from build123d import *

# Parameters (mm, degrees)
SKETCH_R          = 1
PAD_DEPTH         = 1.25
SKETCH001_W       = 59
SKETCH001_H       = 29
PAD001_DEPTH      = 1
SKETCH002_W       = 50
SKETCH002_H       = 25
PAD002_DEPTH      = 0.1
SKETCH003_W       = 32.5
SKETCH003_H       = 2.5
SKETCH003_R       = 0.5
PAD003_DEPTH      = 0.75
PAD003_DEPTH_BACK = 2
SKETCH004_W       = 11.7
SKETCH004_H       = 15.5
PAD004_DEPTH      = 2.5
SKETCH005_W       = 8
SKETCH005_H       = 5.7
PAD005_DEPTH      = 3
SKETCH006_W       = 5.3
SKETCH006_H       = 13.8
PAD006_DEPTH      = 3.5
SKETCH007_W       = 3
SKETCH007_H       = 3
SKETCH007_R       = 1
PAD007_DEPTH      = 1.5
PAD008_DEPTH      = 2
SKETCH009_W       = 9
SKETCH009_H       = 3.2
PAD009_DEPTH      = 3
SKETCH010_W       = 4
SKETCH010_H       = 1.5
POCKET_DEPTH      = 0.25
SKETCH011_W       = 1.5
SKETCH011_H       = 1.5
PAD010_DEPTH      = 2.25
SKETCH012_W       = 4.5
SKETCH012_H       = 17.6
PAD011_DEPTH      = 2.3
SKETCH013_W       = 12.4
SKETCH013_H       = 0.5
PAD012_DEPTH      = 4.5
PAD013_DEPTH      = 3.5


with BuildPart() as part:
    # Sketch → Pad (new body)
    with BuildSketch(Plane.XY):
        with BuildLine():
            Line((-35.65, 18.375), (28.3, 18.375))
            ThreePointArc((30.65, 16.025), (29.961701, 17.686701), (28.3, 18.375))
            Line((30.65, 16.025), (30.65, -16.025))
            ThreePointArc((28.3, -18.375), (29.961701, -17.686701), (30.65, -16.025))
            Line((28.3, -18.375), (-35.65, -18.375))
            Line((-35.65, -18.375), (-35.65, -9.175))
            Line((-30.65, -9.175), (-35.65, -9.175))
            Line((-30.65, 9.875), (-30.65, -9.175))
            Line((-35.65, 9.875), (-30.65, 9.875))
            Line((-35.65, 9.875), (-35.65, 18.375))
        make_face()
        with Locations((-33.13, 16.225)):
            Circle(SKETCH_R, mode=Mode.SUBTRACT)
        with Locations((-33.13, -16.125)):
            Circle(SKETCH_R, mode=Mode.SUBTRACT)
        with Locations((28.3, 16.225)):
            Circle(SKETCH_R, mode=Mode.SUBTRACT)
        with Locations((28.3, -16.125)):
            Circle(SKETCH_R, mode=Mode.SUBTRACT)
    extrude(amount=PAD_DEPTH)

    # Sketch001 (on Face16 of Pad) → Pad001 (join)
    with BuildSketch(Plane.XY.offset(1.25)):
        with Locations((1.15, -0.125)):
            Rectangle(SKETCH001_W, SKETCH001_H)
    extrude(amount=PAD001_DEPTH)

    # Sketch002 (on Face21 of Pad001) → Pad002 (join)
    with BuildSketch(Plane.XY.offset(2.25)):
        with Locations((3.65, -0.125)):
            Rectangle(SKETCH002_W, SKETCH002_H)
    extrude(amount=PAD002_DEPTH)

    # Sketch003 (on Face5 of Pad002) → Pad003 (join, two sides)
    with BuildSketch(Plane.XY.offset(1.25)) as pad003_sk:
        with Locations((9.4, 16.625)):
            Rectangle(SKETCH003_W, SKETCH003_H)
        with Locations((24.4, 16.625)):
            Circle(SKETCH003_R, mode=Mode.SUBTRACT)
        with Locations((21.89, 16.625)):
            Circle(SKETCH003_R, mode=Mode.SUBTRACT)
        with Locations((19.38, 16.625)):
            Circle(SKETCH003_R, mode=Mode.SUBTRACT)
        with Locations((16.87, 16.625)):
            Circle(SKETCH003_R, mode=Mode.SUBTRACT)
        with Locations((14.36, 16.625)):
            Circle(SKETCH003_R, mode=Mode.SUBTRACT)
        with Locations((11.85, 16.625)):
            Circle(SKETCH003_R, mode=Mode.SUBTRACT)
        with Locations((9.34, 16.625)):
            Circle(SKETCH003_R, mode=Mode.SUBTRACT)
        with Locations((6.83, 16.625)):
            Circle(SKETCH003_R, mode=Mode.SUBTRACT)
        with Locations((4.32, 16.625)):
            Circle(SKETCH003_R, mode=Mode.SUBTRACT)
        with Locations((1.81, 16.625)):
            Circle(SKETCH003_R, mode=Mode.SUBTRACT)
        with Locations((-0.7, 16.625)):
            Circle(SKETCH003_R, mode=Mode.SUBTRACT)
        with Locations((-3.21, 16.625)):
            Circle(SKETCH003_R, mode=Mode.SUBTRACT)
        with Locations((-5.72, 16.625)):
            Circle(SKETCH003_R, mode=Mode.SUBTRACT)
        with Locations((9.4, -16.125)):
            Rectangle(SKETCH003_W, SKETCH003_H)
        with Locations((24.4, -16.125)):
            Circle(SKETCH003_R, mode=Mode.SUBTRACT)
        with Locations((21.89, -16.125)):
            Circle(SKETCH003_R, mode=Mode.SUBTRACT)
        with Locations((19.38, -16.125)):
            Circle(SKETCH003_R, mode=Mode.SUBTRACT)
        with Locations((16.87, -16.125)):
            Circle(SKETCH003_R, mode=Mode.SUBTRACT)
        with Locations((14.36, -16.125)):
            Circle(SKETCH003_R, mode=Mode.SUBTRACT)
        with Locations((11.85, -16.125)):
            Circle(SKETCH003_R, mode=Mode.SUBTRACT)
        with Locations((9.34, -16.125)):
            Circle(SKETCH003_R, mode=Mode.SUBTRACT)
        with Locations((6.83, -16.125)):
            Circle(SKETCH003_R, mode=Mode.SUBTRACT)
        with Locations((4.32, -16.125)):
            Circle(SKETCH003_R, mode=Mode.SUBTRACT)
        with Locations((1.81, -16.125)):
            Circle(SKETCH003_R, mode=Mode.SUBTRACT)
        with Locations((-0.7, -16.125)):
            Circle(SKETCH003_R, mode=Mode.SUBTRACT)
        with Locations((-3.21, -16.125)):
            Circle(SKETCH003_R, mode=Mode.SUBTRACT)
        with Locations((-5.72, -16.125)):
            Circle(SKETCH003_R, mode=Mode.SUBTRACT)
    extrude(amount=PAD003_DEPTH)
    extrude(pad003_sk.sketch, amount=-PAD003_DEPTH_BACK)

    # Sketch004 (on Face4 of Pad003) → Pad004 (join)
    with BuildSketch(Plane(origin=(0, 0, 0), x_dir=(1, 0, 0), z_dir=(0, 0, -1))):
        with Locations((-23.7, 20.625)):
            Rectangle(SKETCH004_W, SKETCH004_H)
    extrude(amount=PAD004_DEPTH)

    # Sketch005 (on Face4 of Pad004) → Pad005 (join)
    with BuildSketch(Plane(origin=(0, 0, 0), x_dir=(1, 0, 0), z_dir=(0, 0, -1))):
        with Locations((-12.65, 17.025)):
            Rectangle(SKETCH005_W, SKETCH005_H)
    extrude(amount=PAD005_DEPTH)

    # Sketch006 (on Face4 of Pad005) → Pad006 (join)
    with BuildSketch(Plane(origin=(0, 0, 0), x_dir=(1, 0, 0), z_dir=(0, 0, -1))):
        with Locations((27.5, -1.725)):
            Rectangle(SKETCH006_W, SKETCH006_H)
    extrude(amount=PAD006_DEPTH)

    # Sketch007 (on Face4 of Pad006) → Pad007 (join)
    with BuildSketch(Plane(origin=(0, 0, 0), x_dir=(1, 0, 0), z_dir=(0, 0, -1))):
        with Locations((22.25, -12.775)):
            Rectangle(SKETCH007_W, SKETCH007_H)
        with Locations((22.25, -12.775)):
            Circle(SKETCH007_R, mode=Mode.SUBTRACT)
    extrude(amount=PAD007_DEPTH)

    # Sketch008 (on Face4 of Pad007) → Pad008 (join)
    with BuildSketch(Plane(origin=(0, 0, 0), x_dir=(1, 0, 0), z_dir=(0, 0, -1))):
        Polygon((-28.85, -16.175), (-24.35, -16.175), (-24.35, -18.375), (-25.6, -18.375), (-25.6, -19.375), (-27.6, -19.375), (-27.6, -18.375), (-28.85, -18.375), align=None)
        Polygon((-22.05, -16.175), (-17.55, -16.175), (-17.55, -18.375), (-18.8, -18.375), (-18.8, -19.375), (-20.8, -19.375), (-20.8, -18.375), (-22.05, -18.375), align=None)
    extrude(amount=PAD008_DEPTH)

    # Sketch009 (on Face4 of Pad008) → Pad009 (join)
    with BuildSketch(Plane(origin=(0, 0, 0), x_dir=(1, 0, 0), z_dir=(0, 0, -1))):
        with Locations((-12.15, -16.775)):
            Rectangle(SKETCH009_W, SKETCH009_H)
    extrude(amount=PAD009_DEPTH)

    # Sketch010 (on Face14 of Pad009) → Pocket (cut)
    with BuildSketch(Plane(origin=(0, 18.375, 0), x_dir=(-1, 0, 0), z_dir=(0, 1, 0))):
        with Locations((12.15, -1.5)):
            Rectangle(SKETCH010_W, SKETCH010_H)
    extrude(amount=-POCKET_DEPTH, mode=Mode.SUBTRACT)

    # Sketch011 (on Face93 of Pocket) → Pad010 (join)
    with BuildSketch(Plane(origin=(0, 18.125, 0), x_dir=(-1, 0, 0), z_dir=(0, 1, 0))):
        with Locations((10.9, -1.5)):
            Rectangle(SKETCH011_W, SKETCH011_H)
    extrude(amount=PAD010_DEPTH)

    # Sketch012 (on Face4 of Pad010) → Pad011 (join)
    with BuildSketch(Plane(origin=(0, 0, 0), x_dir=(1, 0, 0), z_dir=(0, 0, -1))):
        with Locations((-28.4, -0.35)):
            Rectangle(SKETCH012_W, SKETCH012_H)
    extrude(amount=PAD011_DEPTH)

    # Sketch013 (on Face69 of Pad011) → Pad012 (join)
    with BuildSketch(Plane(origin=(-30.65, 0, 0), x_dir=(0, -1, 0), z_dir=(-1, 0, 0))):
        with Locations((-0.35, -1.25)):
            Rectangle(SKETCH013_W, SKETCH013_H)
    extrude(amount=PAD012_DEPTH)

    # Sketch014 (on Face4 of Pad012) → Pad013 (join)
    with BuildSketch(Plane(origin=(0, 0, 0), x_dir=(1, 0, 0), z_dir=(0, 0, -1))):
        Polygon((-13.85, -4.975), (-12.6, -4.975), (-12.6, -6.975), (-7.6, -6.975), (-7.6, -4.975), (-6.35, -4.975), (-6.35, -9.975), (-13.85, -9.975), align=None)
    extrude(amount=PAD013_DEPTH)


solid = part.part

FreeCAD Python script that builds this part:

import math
import FreeCAD as App
import Part
import Sketcher

doc = App.newDocument("Part")
body = doc.addObject("PartDesign::Body", "Body")

# Sketch on XY plane
sketch1 = doc.addObject("Sketcher::SketchObject", "Sketch")
body.addObject(sketch1)
sketch1.AttachmentSupport = (doc.XY_Plane, [""])
sketch1.MapMode = "FlatFace"
sketch1.addGeometry([
    Part.LineSegment(App.Vector(28.3, 18.4, 0), App.Vector(-35.6, 18.4, 0)),  # 0
    Part.LineSegment(App.Vector(-35.6, 18.4, 0), App.Vector(-35.6, 9.9, 0)),  # 1
    Part.LineSegment(App.Vector(-35.6, 9.9, 0), App.Vector(-30.6, 9.9, 0)),  # 2
    Part.LineSegment(App.Vector(-30.6, 9.9, 0), App.Vector(-30.6, -9.2, 0)),  # 3
    Part.LineSegment(App.Vector(-30.6, -9.2, 0), App.Vector(-35.6, -9.2, 0)),  # 4
    Part.LineSegment(App.Vector(-35.6, -9.2, 0), App.Vector(-35.6, -18.4, 0)),  # 5
    Part.LineSegment(App.Vector(-35.6, -18.4, 0), App.Vector(28.3, -18.4, 0)),  # 6
    Part.ArcOfCircle(Part.Circle(App.Vector(28.3, -16, 0), App.Vector(0, 0, 1), 2.3), math.radians(-90), math.radians(0)),  # 7
    Part.LineSegment(App.Vector(30.6, -16, 0), App.Vector(30.6, 16, 0)),  # 8
    Part.ArcOfCircle(Part.Circle(App.Vector(28.3, 16, 0), App.Vector(0, 0, 1), 2.3), math.radians(0), math.radians(90)),  # 9
    Part.Circle(App.Vector(28.3, -16.1, 0), App.Vector(0, 0, 1), 1),  # 10
    Part.Circle(App.Vector(-33.1, -16.1, 0), App.Vector(0, 0, 1), 1),  # 11
    Part.Circle(App.Vector(28.3, 16.2, 0), App.Vector(0, 0, 1), 1),  # 12
    Part.Circle(App.Vector(-33.1, 16.2, 0), App.Vector(0, 0, 1), 1),  # 13
], False)
sketch1.addConstraint([
    Sketcher.Constraint("Coincident", 0, 2, 1, 1),
    Sketcher.Constraint("Coincident", 1, 2, 2, 1),
    Sketcher.Constraint("Coincident", 2, 2, 3, 1),
    Sketcher.Constraint("Coincident", 3, 2, 4, 1),
    Sketcher.Constraint("Coincident", 4, 2, 5, 1),
    Sketcher.Constraint("Coincident", 5, 2, 6, 1),
    Sketcher.Constraint("Tangent", 6, 2, 7, 1),
    Sketcher.Constraint("Tangent", 7, 2, 8, 1),
    Sketcher.Constraint("Tangent", 8, 2, 9, 1),
    Sketcher.Constraint("Tangent", 9, 2, 0, 1),
    Sketcher.Constraint("Horizontal", 0),
    Sketcher.Constraint("Vertical", 1),
    Sketcher.Constraint("Horizontal", 2),
    Sketcher.Constraint("Vertical", 3),
    Sketcher.Constraint("Horizontal", 4),
    Sketcher.Constraint("Vertical", 5),
    Sketcher.Constraint("Horizontal", 6),
    Sketcher.Constraint("Vertical", 8),
    Sketcher.Constraint("Equal", 7, 9),
    Sketcher.Constraint("Equal", 10, 11),
    Sketcher.Constraint("Equal", 11, 12),
    Sketcher.Constraint("Equal", 12, 13),
    Sketcher.Constraint("Symmetric", 0, 2, 5, 2, -1),
    Sketcher.Constraint("Horizontal", 10, 3, 11, 3),
    Sketcher.Constraint("Horizontal", 12, 3, 13, 3),
    Sketcher.Constraint("Vertical", 9, 3, 10, 3),
    Sketcher.Constraint("Vertical", 10, 3, 12, 3),
    Sketcher.Constraint("Vertical", 11, 3, 13, 3),
    Sketcher.Constraint("Diameter", 10, 2.0),
    Sketcher.Constraint("DistanceX", 2, 1, 2, 2, 5.0),
    Sketcher.Constraint("Radius", 7, 2.35),
    Sketcher.Constraint("DistanceY", 1, 2, 1, 1, 8.5),
    Sketcher.Constraint("DistanceY", 5, 2, 5, 1, 9.2),
    Sketcher.Constraint("DistanceY", 11, 3, 1, 2, 26.0),
    Sketcher.Constraint("DistanceX", 0, 2, 0, 1, 63.95),
    Sketcher.Constraint("DistanceY", 3, 2, 3, 1, 19.05),
    Sketcher.Constraint("DistanceX", -1, 1, 7, 3, 28.3),
    Sketcher.Constraint("DistanceY", 9, 3, 12, 3, 0.2),
    Sketcher.Constraint("DistanceX", 11, 3, -1, 1, 33.13),
])
pad1 = doc.addObject("PartDesign::Pad", "Pad")
body.addObject(pad1)
pad1.Profile = sketch1
pad1.Length = 1.25

# Sketch on XY plane
sketch2 = doc.addObject("Sketcher::SketchObject", "Sketch001")
body.addObject(sketch2)
sketch2.AttachmentSupport = (doc.XY_Plane, [""])
sketch2.MapMode = "FlatFace"
sketch2.AttachmentOffset = App.Placement(App.Vector(0, 0, 1.25), App.Rotation())
sketch2.addGeometry([
    Part.LineSegment(App.Vector(-28, 14, 0), App.Vector(-28, -15, 0)),
    Part.LineSegment(App.Vector(-28, -15, 0), App.Vector(31, -15, 0)),
    Part.LineSegment(App.Vector(31, -15, 0), App.Vector(31, 14, 0)),
    Part.LineSegment(App.Vector(31, 14, 0), App.Vector(-28, 14, 0)),
], False)
sketch2.addConstraint([
    Sketcher.Constraint("Coincident", 0, 2, 1, 1),
    Sketcher.Constraint("Coincident", 1, 2, 2, 1),
    Sketcher.Constraint("Coincident", 2, 2, 3, 1),
    Sketcher.Constraint("Coincident", 3, 2, 0, 1),
    Sketcher.Constraint("Vertical", 0),
    Sketcher.Constraint("Horizontal", 1),
    Sketcher.Constraint("Vertical", 2),
    Sketcher.Constraint("Horizontal", 3),
    Sketcher.Constraint("DistanceX", 1, 1, 1, 2, 59.0),
    Sketcher.Constraint("DistanceY", 0, 2, 0, 1, 29.0),
    Sketcher.Constraint("DistanceX", 0, 2, -1, 1, 28.35),
    Sketcher.Constraint("DistanceY", 0, 2, -1, 1, 14.625),
])
pad2 = doc.addObject("PartDesign::Pad", "Pad001")
body.addObject(pad2)
pad2.Profile = sketch2
pad2.Length = 1

# Sketch on XY plane
sketch3 = doc.addObject("Sketcher::SketchObject", "Sketch002")
body.addObject(sketch3)
sketch3.AttachmentSupport = (doc.XY_Plane, [""])
sketch3.MapMode = "FlatFace"
sketch3.AttachmentOffset = App.Placement(App.Vector(0, 0, 2.25), App.Rotation())
sketch3.addGeometry([
    Part.LineSegment(App.Vector(-21, 12, 0), App.Vector(-21, -13, 0)),
    Part.LineSegment(App.Vector(-21, -13, 0), App.Vector(29, -13, 0)),
    Part.LineSegment(App.Vector(29, -13, 0), App.Vector(29, 12, 0)),
    Part.LineSegment(App.Vector(29, 12, 0), App.Vector(-21, 12, 0)),
], False)
sketch3.addConstraint([
    Sketcher.Constraint("Coincident", 0, 2, 1, 1),
    Sketcher.Constraint("Coincident", 1, 2, 2, 1),
    Sketcher.Constraint("Coincident", 2, 2, 3, 1),
    Sketcher.Constraint("Coincident", 3, 2, 0, 1),
    Sketcher.Constraint("Vertical", 0),
    Sketcher.Constraint("Horizontal", 1),
    Sketcher.Constraint("Vertical", 2),
    Sketcher.Constraint("Horizontal", 3),
    Sketcher.Constraint("DistanceX", 1, 1, 1, 2, 50.0),
    Sketcher.Constraint("DistanceY", 0, 2, 0, 1, 25.0),
    Sketcher.Constraint("DistanceX", 0, 2, -1, 1, 21.35),
    Sketcher.Constraint("DistanceY", 0, 2, -1, 1, 12.625),
])
pad3 = doc.addObject("PartDesign::Pad", "Pad002")
body.addObject(pad3)
pad3.Profile = sketch3
pad3.Length = 0.1

# Sketch on XY plane
sketch4 = doc.addObject("Sketcher::SketchObject", "Sketch003")
body.addObject(sketch4)
sketch4.AttachmentSupport = (doc.XY_Plane, [""])
sketch4.MapMode = "FlatFace"
sketch4.AttachmentOffset = App.Placement(App.Vector(0, 0, 1.25), App.Rotation())
sketch4.addGeometry([
    Part.LineSegment(App.Vector(-6.8, 17.9, 0), App.Vector(-6.8, 15.4, 0)),  # 0
    Part.LineSegment(App.Vector(-6.8, 15.4, 0), App.Vector(25.6, 15.4, 0)),  # 1
    Part.LineSegment(App.Vector(25.6, 15.4, 0), App.Vector(25.6, 17.9, 0)),  # 2
    Part.LineSegment(App.Vector(25.6, 17.9, 0), App.Vector(-6.8, 17.9, 0)),  # 3
    Part.Circle(App.Vector(-5.7, 16.6, 0), App.Vector(0, 0, 1), 0.5),  # 4
    Part.Circle(App.Vector(-3.2, 16.6, 0), App.Vector(0, 0, 1), 0.5),  # 5
    Part.Circle(App.Vector(-0.7, 16.6, 0), App.Vector(0, 0, 1), 0.5),  # 6
    Part.Circle(App.Vector(1.8, 16.6, 0), App.Vector(0, 0, 1), 0.5),  # 7
    Part.Circle(App.Vector(4.3, 16.6, 0), App.Vector(0, 0, 1), 0.5),  # 8
    Part.Circle(App.Vector(6.8, 16.6, 0), App.Vector(0, 0, 1), 0.5),  # 9
    Part.Circle(App.Vector(9.3, 16.6, 0), App.Vector(0, 0, 1), 0.5),  # 10
    Part.Circle(App.Vector(11.8, 16.6, 0), App.Vector(0, 0, 1), 0.5),  # 11
    Part.Circle(App.Vector(14.4, 16.6, 0), App.Vector(0, 0, 1), 0.5),  # 12
    Part.Circle(App.Vector(16.9, 16.6, 0), App.Vector(0, 0, 1), 0.5),  # 13
    Part.Circle(App.Vector(19.4, 16.6, 0), App.Vector(0, 0, 1), 0.5),  # 14
    Part.Circle(App.Vector(21.9, 16.6, 0), App.Vector(0, 0, 1), 0.5),  # 15
    Part.Circle(App.Vector(24.4, 16.6, 0), App.Vector(0, 0, 1), 0.5),  # 16
    Part.LineSegment(App.Vector(-6.8, -14.9, 0), App.Vector(-6.8, -17.4, 0)),  # 17
    Part.LineSegment(App.Vector(-6.8, -17.4, 0), App.Vector(25.6, -17.4, 0)),  # 18
    Part.LineSegment(App.Vector(25.6, -17.4, 0), App.Vector(25.6, -14.9, 0)),  # 19
    Part.LineSegment(App.Vector(25.6, -14.9, 0), App.Vector(-6.8, -14.9, 0)),  # 20
    Part.Circle(App.Vector(-5.7, -16.1, 0), App.Vector(0, 0, 1), 0.5),  # 21
    Part.Circle(App.Vector(-3.2, -16.1, 0), App.Vector(0, 0, 1), 0.5),  # 22
    Part.Circle(App.Vector(-0.7, -16.1, 0), App.Vector(0, 0, 1), 0.5),  # 23
    Part.Circle(App.Vector(1.8, -16.1, 0), App.Vector(0, 0, 1), 0.5),  # 24
    Part.Circle(App.Vector(4.3, -16.1, 0), App.Vector(0, 0, 1), 0.5),  # 25
    Part.Circle(App.Vector(6.8, -16.1, 0), App.Vector(0, 0, 1), 0.5),  # 26
    Part.Circle(App.Vector(9.3, -16.1, 0), App.Vector(0, 0, 1), 0.5),  # 27
    Part.Circle(App.Vector(11.8, -16.1, 0), App.Vector(0, 0, 1), 0.5),  # 28
    Part.Circle(App.Vector(14.4, -16.1, 0), App.Vector(0, 0, 1), 0.5),  # 29
    Part.Circle(App.Vector(16.9, -16.1, 0), App.Vector(0, 0, 1), 0.5),  # 30
    Part.Circle(App.Vector(19.4, -16.1, 0), App.Vector(0, 0, 1), 0.5),  # 31
    Part.Circle(App.Vector(21.9, -16.1, 0), App.Vector(0, 0, 1), 0.5),  # 32
    Part.Circle(App.Vector(24.4, -16.1, 0), App.Vector(0, 0, 1), 0.5),  # 33
], False)
sketch4.addConstraint([
    Sketcher.Constraint("Coincident", 0, 2, 1, 1),
    Sketcher.Constraint("Coincident", 1, 2, 2, 1),
    Sketcher.Constraint("Coincident", 2, 2, 3, 1),
    Sketcher.Constraint("Coincident", 3, 2, 0, 1),
    Sketcher.Constraint("Coincident", 17, 2, 18, 1),
    Sketcher.Constraint("Coincident", 18, 2, 19, 1),
    Sketcher.Constraint("Coincident", 19, 2, 20, 1),
    Sketcher.Constraint("Coincident", 20, 2, 17, 1),
    Sketcher.Constraint("Vertical", 0),
    Sketcher.Constraint("Horizontal", 1),
    Sketcher.Constraint("Vertical", 2),
    Sketcher.Constraint("Horizontal", 3),
    Sketcher.Constraint("Vertical", 17),
    Sketcher.Constraint("Horizontal", 18),
    Sketcher.Constraint("Vertical", 19),
    Sketcher.Constraint("Horizontal", 20),
    Sketcher.Constraint("Equal", 4, 5),
    Sketcher.Constraint("Equal", 5, 6),
    Sketcher.Constraint("Equal", 6, 7),
    Sketcher.Constraint("Equal", 7, 8),
    Sketcher.Constraint("Equal", 8, 9),
    Sketcher.Constraint("Equal", 9, 10),
    Sketcher.Constraint("Equal", 10, 11),
    Sketcher.Constraint("Equal", 11, 12),
    Sketcher.Constraint("Equal", 12, 13),
    Sketcher.Constraint("Equal", 13, 14),
    Sketcher.Constraint("Equal", 14, 15),
    Sketcher.Constraint("Equal", 15, 16),
    Sketcher.Constraint("Equal", 16, 21),
    Sketcher.Constraint("Equal", 21, 22),
    Sketcher.Constraint("Equal", 22, 23),
    Sketcher.Constraint("Equal", 23, 24),
    Sketcher.Constraint("Equal", 24, 25),
    Sketcher.Constraint("Equal", 25, 26),
    Sketcher.Constraint("Equal", 26, 27),
    Sketcher.Constraint("Equal", 27, 28),
    Sketcher.Constraint("Equal", 28, 29),
    Sketcher.Constraint("Equal", 29, 30),
    Sketcher.Constraint("Equal", 30, 31),
    Sketcher.Constraint("Equal", 31, 32),
    Sketcher.Constraint("Equal", 32, 33),
    Sketcher.Constraint("Horizontal", 4, 3, 5, 3),
    Sketcher.Constraint("Horizontal", 5, 3, 6, 3),
    Sketcher.Constraint("Horizontal", 6, 3, 7, 3),
    Sketcher.Constraint("Horizontal", 7, 3, 8, 3),
    Sketcher.Constraint("Horizontal", 8, 3, 9, 3),
    Sketcher.Constraint("Horizontal", 9, 3, 10, 3),
    Sketcher.Constraint("Horizontal", 10, 3, 11, 3),
    Sketcher.Constraint("Horizontal", 11, 3, 12, 3),
    Sketcher.Constraint("Horizontal", 12, 3, 13, 3),
    Sketcher.Constraint("Horizontal", 13, 3, 14, 3),
    Sketcher.Constraint("Horizontal", 14, 3, 15, 3),
    Sketcher.Constraint("Horizontal", 15, 3, 16, 3),
    Sketcher.Constraint("Horizontal", 21, 3, 22, 3),
    Sketcher.Constraint("Horizontal", 22, 3, 23, 3),
    Sketcher.Constraint("Horizontal", 23, 3, 24, 3),
    Sketcher.Constraint("Horizontal", 24, 3, 25, 3),
    Sketcher.Constraint("Horizontal", 25, 3, 26, 3),
    Sketcher.Constraint("Horizontal", 26, 3, 27, 3),
    Sketcher.Constraint("Horizontal", 27, 3, 28, 3),
    Sketcher.Constraint("Horizontal", 28, 3, 29, 3),
    Sketcher.Constraint("Horizontal", 29, 3, 30, 3),
    Sketcher.Constraint("Horizontal", 30, 3, 31, 3),
    Sketcher.Constraint("Horizontal", 31, 3, 32, 3),
    Sketcher.Constraint("Horizontal", 32, 3, 33, 3),
    Sketcher.Constraint("Vertical", 4, 3, 21, 3),
    Sketcher.Constraint("Vertical", 5, 3, 22, 3),
    Sketcher.Constraint("Vertical", 6, 3, 23, 3),
    Sketcher.Constraint("Vertical", 7, 3, 24, 3),
    Sketcher.Constraint("Vertical", 8, 3, 25, 3),
    Sketcher.Constraint("Vertical", 9, 3, 26, 3),
    Sketcher.Constraint("Vertical", 10, 3, 27, 3),
    Sketcher.Constraint("Vertical", 11, 3, 28, 3),
    Sketcher.Constraint("Vertical", 12, 3, 29, 3),
    Sketcher.Constraint("Vertical", 13, 3, 30, 3),
    Sketcher.Constraint("Vertical", 14, 3, 31, 3),
    Sketcher.Constraint("Vertical", 15, 3, 32, 3),
    Sketcher.Constraint("Vertical", 16, 3, 33, 3),
    Sketcher.Constraint("Vertical", 3, 2, 17, 2),
    Sketcher.Constraint("Vertical", 2, 2, 18, 2),
    Sketcher.Constraint("Equal", 2, 17),
    Sketcher.Constraint("Diameter", 4, 1.0),
    Sketcher.Constraint("DistanceX", 1, 1, 1, 2, 32.5),
    Sketcher.Constraint("DistanceY", 0, 2, 0, 1, 2.5),
    Sketcher.Constraint("DistanceX", 6, 3, -1, 1, 0.7),
    Sketcher.Constraint("DistanceX", -1, 1, 16, 3, 24.4),
    Sketcher.Constraint("DistanceX", 4, 3, -1, 1, 5.72),
    Sketcher.Constraint("DistanceX", 5, 3, -1, 1, 3.21),
    Sketcher.Constraint("DistanceX", -1, 1, 7, 3, 1.81),
    Sketcher.Constraint("DistanceX", -1, 1, 8, 3, 4.32),
    Sketcher.Constraint("DistanceX", -1, 1, 9, 3, 6.83),
    Sketcher.Constraint("DistanceX", -1, 1, 10, 3, 9.34),
    Sketcher.Constraint("DistanceX", -1, 1, 11, 3, 11.85),
    Sketcher.Constraint("DistanceX", -1, 1, 12, 3, 14.36),
    Sketcher.Constraint("DistanceX", -1, 1, 13, 3, 16.87),
    Sketcher.Constraint("DistanceX", -1, 1, 14, 3, 19.38),
    Sketcher.Constraint("DistanceX", -1, 1, 15, 3, 21.89),
    Sketcher.Constraint("DistanceX", 0, 2, -1, 1, 6.85),
    Sketcher.Constraint("DistanceY", 21, 3, 4, 3, 32.75),
    Sketcher.Constraint("DistanceY", 0, 2, 4, 3, 1.25),
    Sketcher.Constraint("DistanceY", 17, 2, 21, 3, 1.25),
    Sketcher.Constraint("DistanceY", -1, 1, 4, 3, 16.625),
])
pad4 = doc.addObject("PartDesign::Pad", "Pad003")
body.addObject(pad4)
pad4.Profile = sketch4
pad4.Type = "TwoLengths"
pad4.Length = 0.75
pad4.Length2 = 2

# Sketch on XY plane
sketch5 = doc.addObject("Sketcher::SketchObject", "Sketch004")
body.addObject(sketch5)
sketch5.AttachmentSupport = (doc.XY_Plane, [""])
sketch5.MapMode = "FlatFace"
sketch5.addGeometry([
    Part.LineSegment(App.Vector(-30, -28, 0), App.Vector(-30, -13, 0)),
    Part.LineSegment(App.Vector(-30, -13, 0), App.Vector(-18, -13, 0)),
    Part.LineSegment(App.Vector(-18, -13, 0), App.Vector(-18, -28, 0)),
    Part.LineSegment(App.Vector(-18, -28, 0), App.Vector(-30, -28, 0)),
], False)
sketch5.addConstraint([
    Sketcher.Constraint("Coincident", 0, 2, 1, 1),
    Sketcher.Constraint("Coincident", 1, 2, 2, 1),
    Sketcher.Constraint("Coincident", 2, 2, 3, 1),
    Sketcher.Constraint("Coincident", 3, 2, 0, 1),
    Sketcher.Constraint("Vertical", 0),
    Sketcher.Constraint("Horizontal", 1),
    Sketcher.Constraint("Vertical", 2),
    Sketcher.Constraint("Horizontal", 3),
    Sketcher.Constraint("DistanceX", 1, 1, 1, 2, 11.7),
    Sketcher.Constraint("DistanceY", 0, 1, 0, 2, 15.5),
    Sketcher.Constraint("DistanceX", 0, 2, -1, 1, 29.55),
    Sketcher.Constraint("DistanceY", 0, 2, -1, 1, 12.875),
])
pad5 = doc.addObject("PartDesign::Pad", "Pad004")
body.addObject(pad5)
pad5.Profile = sketch5
pad5.Length = 2.5
pad5.Reversed = True

# Sketch on XY plane
sketch6 = doc.addObject("Sketcher::SketchObject", "Sketch005")
body.addObject(sketch6)
sketch6.AttachmentSupport = (doc.XY_Plane, [""])
sketch6.MapMode = "FlatFace"
sketch6.addGeometry([
    Part.LineSegment(App.Vector(-17, -20, 0), App.Vector(-17, -14, 0)),
    Part.LineSegment(App.Vector(-17, -14, 0), App.Vector(-9, -14, 0)),
    Part.LineSegment(App.Vector(-9, -14, 0), App.Vector(-9, -20, 0)),
    Part.LineSegment(App.Vector(-9, -20, 0), App.Vector(-17, -20, 0)),
], False)
sketch6.addConstraint([
    Sketcher.Constraint("Coincident", 0, 2, 1, 1),
    Sketcher.Constraint("Coincident", 1, 2, 2, 1),
    Sketcher.Constraint("Coincident", 2, 2, 3, 1),
    Sketcher.Constraint("Coincident", 3, 2, 0, 1),
    Sketcher.Constraint("Vertical", 0),
    Sketcher.Constraint("Horizontal", 1),
    Sketcher.Constraint("Vertical", 2),
    Sketcher.Constraint("Horizontal", 3),
    Sketcher.Constraint("DistanceX", 1, 1, 1, 2, 8.0),
    Sketcher.Constraint("DistanceY", 0, 1, 0, 2, 5.7),
    Sketcher.Constraint("DistanceX", 0, 2, -1, 1, 16.65),
    Sketcher.Constraint("DistanceY", 0, 2, -1, 1, 14.175),
])
pad6 = doc.addObject("PartDesign::Pad", "Pad005")
body.addObject(pad6)
pad6.Profile = sketch6
pad6.Length = 3
pad6.Reversed = True

# Sketch on XY plane
sketch7 = doc.addObject("Sketcher::SketchObject", "Sketch006")
body.addObject(sketch7)
sketch7.AttachmentSupport = (doc.XY_Plane, [""])
sketch7.MapMode = "FlatFace"
sketch7.addGeometry([
    Part.LineSegment(App.Vector(25, -5, 0), App.Vector(25, 9, 0)),
    Part.LineSegment(App.Vector(25, 9, 0), App.Vector(30, 9, 0)),
    Part.LineSegment(App.Vector(30, 9, 0), App.Vector(30, -5, 0)),
    Part.LineSegment(App.Vector(30, -5, 0), App.Vector(25, -5, 0)),
], False)
sketch7.addConstraint([
    Sketcher.Constraint("Coincident", 0, 2, 1, 1),
    Sketcher.Constraint("Coincident", 1, 2, 2, 1),
    Sketcher.Constraint("Coincident", 2, 2, 3, 1),
    Sketcher.Constraint("Coincident", 3, 2, 0, 1),
    Sketcher.Constraint("Vertical", 0),
    Sketcher.Constraint("Horizontal", 1),
    Sketcher.Constraint("Vertical", 2),
    Sketcher.Constraint("Horizontal", 3),
    Sketcher.Constraint("DistanceX", 1, 1, 1, 2, 5.3),
    Sketcher.Constraint("DistanceY", 0, 1, 0, 2, 13.8),
    Sketcher.Constraint("DistanceX", -1, 1, 0, 2, 24.85),
    Sketcher.Constraint("DistanceY", -1, 1, 0, 2, 8.625),
])
pad7 = doc.addObject("PartDesign::Pad", "Pad006")
body.addObject(pad7)
pad7.Profile = sketch7
pad7.Length = 3.5
pad7.Reversed = True

# Sketch on XY plane
sketch8 = doc.addObject("Sketcher::SketchObject", "Sketch007")
body.addObject(sketch8)
sketch8.AttachmentSupport = (doc.XY_Plane, [""])
sketch8.MapMode = "FlatFace"
sketch8.addGeometry([
    Part.LineSegment(App.Vector(20.8, 11.3, 0), App.Vector(20.8, 14.3, 0)),  # 0
    Part.LineSegment(App.Vector(20.8, 14.3, 0), App.Vector(23.8, 14.3, 0)),  # 1
    Part.LineSegment(App.Vector(23.8, 14.3, 0), App.Vector(23.8, 11.3, 0)),  # 2
    Part.LineSegment(App.Vector(23.8, 11.3, 0), App.Vector(20.8, 11.3, 0)),  # 3
    Part.Circle(App.Vector(22.2, 12.8, 0), App.Vector(0, 0, 1), 1),  # 4
], False)
sketch8.addConstraint([
    Sketcher.Constraint("Coincident", 0, 2, 1, 1),
    Sketcher.Constraint("Coincident", 1, 2, 2, 1),
    Sketcher.Constraint("Coincident", 2, 2, 3, 1),
    Sketcher.Constraint("Coincident", 3, 2, 0, 1),
    Sketcher.Constraint("Vertical", 0),
    Sketcher.Constraint("Horizontal", 1),
    Sketcher.Constraint("Vertical", 2),
    Sketcher.Constraint("Horizontal", 3),
    Sketcher.Constraint("Equal", 3, 0),
    Sketcher.Constraint("Diameter", 4, 2.0),
    Sketcher.Constraint("DistanceX", 1, 1, 1, 2, 3.0),
    Sketcher.Constraint("DistanceX", 0, 2, 4, 3, 1.5),
    Sketcher.Constraint("DistanceY", 4, 3, 0, 2, 1.5),
    Sketcher.Constraint("DistanceX", -1, 1, 4, 3, 22.25),
    Sketcher.Constraint("DistanceY", -1, 1, 4, 3, 12.775),
])
pad8 = doc.addObject("PartDesign::Pad", "Pad007")
body.addObject(pad8)
pad8.Profile = sketch8
pad8.Length = 1.5
pad8.Reversed = True

# Sketch on XY plane
sketch9 = doc.addObject("Sketcher::SketchObject", "Sketch008")
body.addObject(sketch9)
sketch9.AttachmentSupport = (doc.XY_Plane, [""])
sketch9.MapMode = "FlatFace"
sketch9.addGeometry([
    Part.LineSegment(App.Vector(-24.4, 16.2, 0), App.Vector(-28.9, 16.2, 0)),  # 0
    Part.LineSegment(App.Vector(-28.9, 16.2, 0), App.Vector(-28.9, 18.4, 0)),  # 1
    Part.LineSegment(App.Vector(-28.9, 18.4, 0), App.Vector(-27.6, 18.4, 0)),  # 2
    Part.LineSegment(App.Vector(-27.6, 18.4, 0), App.Vector(-27.6, 19.4, 0)),  # 3
    Part.LineSegment(App.Vector(-27.6, 19.4, 0), App.Vector(-25.6, 19.4, 0)),  # 4
    Part.LineSegment(App.Vector(-25.6, 19.4, 0), App.Vector(-25.6, 18.4, 0)),  # 5
    Part.LineSegment(App.Vector(-25.6, 18.4, 0), App.Vector(-24.4, 18.4, 0)),  # 6
    Part.LineSegment(App.Vector(-24.4, 18.4, 0), App.Vector(-24.4, 16.2, 0)),  # 7
    Part.LineSegment(App.Vector(-17.6, 16.2, 0), App.Vector(-22.1, 16.2, 0)),  # 8
    Part.LineSegment(App.Vector(-22.1, 16.2, 0), App.Vector(-22.1, 18.4, 0)),  # 9
    Part.LineSegment(App.Vector(-22.1, 18.4, 0), App.Vector(-20.8, 18.4, 0)),  # 10
    Part.LineSegment(App.Vector(-20.8, 18.4, 0), App.Vector(-20.8, 19.4, 0)),  # 11
    Part.LineSegment(App.Vector(-20.8, 19.4, 0), App.Vector(-18.8, 19.4, 0)),  # 12
    Part.LineSegment(App.Vector(-18.8, 19.4, 0), App.Vector(-18.8, 18.4, 0)),  # 13
    Part.LineSegment(App.Vector(-18.8, 18.4, 0), App.Vector(-17.6, 18.4, 0)),  # 14
    Part.LineSegment(App.Vector(-17.6, 18.4, 0), App.Vector(-17.6, 16.2, 0)),  # 15
], False)
sketch9.addConstraint([
    Sketcher.Constraint("Coincident", 0, 2, 1, 1),
    Sketcher.Constraint("Coincident", 1, 2, 2, 1),
    Sketcher.Constraint("Coincident", 2, 2, 3, 1),
    Sketcher.Constraint("Coincident", 3, 2, 4, 1),
    Sketcher.Constraint("Coincident", 4, 2, 5, 1),
    Sketcher.Constraint("Coincident", 5, 2, 6, 1),
    Sketcher.Constraint("Coincident", 6, 2, 7, 1),
    Sketcher.Constraint("Coincident", 7, 2, 0, 1),
    Sketcher.Constraint("Coincident", 8, 2, 9, 1),
    Sketcher.Constraint("Coincident", 9, 2, 10, 1),
    Sketcher.Constraint("Coincident", 10, 2, 11, 1),
    Sketcher.Constraint("Coincident", 11, 2, 12, 1),
    Sketcher.Constraint("Coincident", 12, 2, 13, 1),
    Sketcher.Constraint("Coincident", 13, 2, 14, 1),
    Sketcher.Constraint("Coincident", 14, 2, 15, 1),
    Sketcher.Constraint("Coincident", 15, 2, 8, 1),
    Sketcher.Constraint("Horizontal", 0),
    Sketcher.Constraint("Vertical", 1),
    Sketcher.Constraint("Horizontal", 2),
    Sketcher.Constraint("Vertical", 3),
    Sketcher.Constraint("Horizontal", 4),
    Sketcher.Constraint("Vertical", 5),
    Sketcher.Constraint("Horizontal", 6),
    Sketcher.Constraint("Vertical", 7),
    Sketcher.Constraint("Horizontal", 8),
    Sketcher.Constraint("Vertical", 9),
    Sketcher.Constraint("Horizontal", 10),
    Sketcher.Constraint("Vertical", 11),
    Sketcher.Constraint("Horizontal", 12),
    Sketcher.Constraint("Vertical", 13),
    Sketcher.Constraint("Horizontal", 14),
    Sketcher.Constraint("Vertical", 15),
    Sketcher.Constraint("Horizontal", 2, 2, 5, 2),
    Sketcher.Constraint("Horizontal", 7, 2, 8, 2),
    Sketcher.Constraint("Horizontal", 6, 2, 9, 2),
    Sketcher.Constraint("Horizontal", 4, 2, 11, 2),
    Sketcher.Constraint("Horizontal", 10, 2, 13, 2),
    Sketcher.Constraint("Equal", 2, 6),
    Sketcher.Constraint("Equal", 0, 8),
    Sketcher.Constraint("Equal", 6, 10),
    Sketcher.Constraint("Equal", 4, 12),
    Sketcher.Constraint("DistanceX", 4, 1, 4, 2, 2.0),
    Sketcher.Constraint("DistanceY", 3, 1, 3, 2, 1.0),
    Sketcher.Constraint("DistanceX", 0, 2, 0, 1, 4.5),
    Sketcher.Constraint("DistanceY", 1, 1, 1, 2, 2.2),
    Sketcher.Constraint("DistanceX", 2, 2, -1, 1, 27.6),
    Sketcher.Constraint("DistanceX", 10, 2, -1, 1, 20.8),
    Sketcher.Constraint("DistanceY", -1, 1, 0, 2, 16.175),
])
pad9 = doc.addObject("PartDesign::Pad", "Pad008")
body.addObject(pad9)
pad9.Profile = sketch9
pad9.Length = 2
pad9.Reversed = True

# Sketch on XY plane
sketch10 = doc.addObject("Sketcher::SketchObject", "Sketch009")
body.addObject(sketch10)
sketch10.AttachmentSupport = (doc.XY_Plane, [""])
sketch10.MapMode = "FlatFace"
sketch10.addGeometry([
    Part.LineSegment(App.Vector(-16.6, 15.2, 0), App.Vector(-16.6, 18.4, 0)),
    Part.LineSegment(App.Vector(-16.6, 18.4, 0), App.Vector(-7.7, 18.4, 0)),
    Part.LineSegment(App.Vector(-7.7, 18.4, 0), App.Vector(-7.7, 15.2, 0)),
    Part.LineSegment(App.Vector(-7.7, 15.2, 0), App.Vector(-16.6, 15.2, 0)),
], False)
sketch10.addConstraint([
    Sketcher.Constraint("Coincident", 0, 2, 1, 1),
    Sketcher.Constraint("Coincident", 1, 2, 2, 1),
    Sketcher.Constraint("Coincident", 2, 2, 3, 1),
    Sketcher.Constraint("Coincident", 3, 2, 0, 1),
    Sketcher.Constraint("Vertical", 0),
    Sketcher.Constraint("Horizontal", 1),
    Sketcher.Constraint("Vertical", 2),
    Sketcher.Constraint("Horizontal", 3),
    Sketcher.Constraint("DistanceX", 1, 1, 1, 2, 9.0),
    Sketcher.Constraint("DistanceY", 0, 1, 0, 2, 3.2),
    Sketcher.Constraint("DistanceX", 0, 2, -1, 1, 16.65),
    Sketcher.Constraint("DistanceY", -1, 1, 0, 2, 18.375),
])
pad10 = doc.addObject("PartDesign::Pad", "Pad009")
body.addObject(pad10)
pad10.Profile = sketch10
pad10.Length = 3
pad10.Reversed = True

# Sketch on XZ plane
sketch11 = doc.addObject("Sketcher::SketchObject", "Sketch010")
body.addObject(sketch11)
sketch11.AttachmentSupport = (doc.XZ_Plane, [""])
sketch11.MapMode = "FlatFace"
sketch11.AttachmentOffset = App.Placement(App.Vector(0, 0, -18.375), App.Rotation())
sketch11.addGeometry([
    Part.LineSegment(App.Vector(-10.2, -0.8, 0), App.Vector(-10.2, -2.2, 0)),
    Part.LineSegment(App.Vector(-10.2, -2.2, 0), App.Vector(-14.2, -2.2, 0)),
    Part.LineSegment(App.Vector(-14.2, -2.2, 0), App.Vector(-14.2, -0.8, 0)),
    Part.LineSegment(App.Vector(-14.2, -0.8, 0), App.Vector(-10.2, -0.8, 0)),
], False)
sketch11.addConstraint([
    Sketcher.Constraint("Coincident", 0, 2, 1, 1),
    Sketcher.Constraint("Coincident", 1, 2, 2, 1),
    Sketcher.Constraint("Coincident", 2, 2, 3, 1),
    Sketcher.Constraint("Coincident", 3, 2, 0, 1),
    Sketcher.Constraint("Vertical", 0),
    Sketcher.Constraint("Horizontal", 1),
    Sketcher.Constraint("Vertical", 2),
    Sketcher.Constraint("Horizontal", 3),
    Sketcher.Constraint("DistanceX", 1, 2, 1, 1, 4.0),
    Sketcher.Constraint("DistanceY", 0, 2, 0, 1, 1.5),
    Sketcher.Constraint("DistanceX", 0, 2, -1, 1, 10.15),
    Sketcher.Constraint("DistanceY", 0, 2, -1, 1, 2.25),
])
pocket1 = doc.addObject("PartDesign::Pocket", "Pocket")
body.addObject(pocket1)
pocket1.Profile = sketch11
pocket1.Length = 0.25
pocket1.Reversed = True

# Sketch on XZ plane
sketch12 = doc.addObject("Sketcher::SketchObject", "Sketch011")
body.addObject(sketch12)
sketch12.AttachmentSupport = (doc.XZ_Plane, [""])
sketch12.MapMode = "FlatFace"
sketch12.AttachmentOffset = App.Placement(App.Vector(0, 0, -18.125), App.Rotation())
sketch12.addGeometry([
    Part.LineSegment(App.Vector(-10.2, -0.8, 0), App.Vector(-10.2, -2.2, 0)),
    Part.LineSegment(App.Vector(-10.2, -2.2, 0), App.Vector(-11.7, -2.2, 0)),
    Part.LineSegment(App.Vector(-11.7, -2.2, 0), App.Vector(-11.7, -0.8, 0)),
    Part.LineSegment(App.Vector(-11.7, -0.8, 0), App.Vector(-10.2, -0.8, 0)),
], False)
sketch12.addConstraint([
    Sketcher.Constraint("Coincident", 0, 2, 1, 1),
    Sketcher.Constraint("Coincident", 1, 2, 2, 1),
    Sketcher.Constraint("Coincident", 2, 2, 3, 1),
    Sketcher.Constraint("Coincident", 3, 2, 0, 1),
    Sketcher.Constraint("Vertical", 0),
    Sketcher.Constraint("Horizontal", 1),
    Sketcher.Constraint("Vertical", 2),
    Sketcher.Constraint("Horizontal", 3),
    Sketcher.Constraint("Equal", 3, 0),
    Sketcher.Constraint("DistanceX", 1, 2, 1, 1, 1.5),
    Sketcher.Constraint("DistanceX", 0, 2, -1, 1, 10.15),
    Sketcher.Constraint("DistanceY", 0, 2, -1, 1, 2.25),
])
pad11 = doc.addObject("PartDesign::Pad", "Pad010")
body.addObject(pad11)
pad11.Profile = sketch12
pad11.Length = 2.25
pad11.Reversed = True

# Sketch on XY plane
sketch13 = doc.addObject("Sketcher::SketchObject", "Sketch012")
body.addObject(sketch13)
sketch13.AttachmentSupport = (doc.XY_Plane, [""])
sketch13.MapMode = "FlatFace"
sketch13.addGeometry([
    Part.LineSegment(App.Vector(-30.6, -8.4, 0), App.Vector(-30.6, 9.2, 0)),
    Part.LineSegment(App.Vector(-30.6, 9.2, 0), App.Vector(-26.1, 9.2, 0)),
    Part.LineSegment(App.Vector(-26.1, 9.2, 0), App.Vector(-26.1, -8.4, 0)),
    Part.LineSegment(App.Vector(-26.1, -8.4, 0), App.Vector(-30.6, -8.4, 0)),
], False)
sketch13.addConstraint([
    Sketcher.Constraint("Coincident", 0, 2, 1, 1),
    Sketcher.Constraint("Coincident", 1, 2, 2, 1),
    Sketcher.Constraint("Coincident", 2, 2, 3, 1),
    Sketcher.Constraint("Coincident", 3, 2, 0, 1),
    Sketcher.Constraint("Vertical", 0),
    Sketcher.Constraint("Horizontal", 1),
    Sketcher.Constraint("Vertical", 2),
    Sketcher.Constraint("Horizontal", 3),
    Sketcher.Constraint("DistanceX", 1, 1, 1, 2, 4.5),
    Sketcher.Constraint("DistanceY", 0, 1, 0, 2, 17.6),
    Sketcher.Constraint("DistanceX", 0, 2, -1, 1, 30.65),
    Sketcher.Constraint("DistanceY", -1, 1, 0, 2, 9.15),
])
pad12 = doc.addObject("PartDesign::Pad", "Pad011")
body.addObject(pad12)
pad12.Profile = sketch13
pad12.Length = 2.3
pad12.Reversed = True

# Sketch on YZ plane
sketch14 = doc.addObject("Sketcher::SketchObject", "Sketch013")
body.addObject(sketch14)
sketch14.AttachmentSupport = (doc.YZ_Plane, [""])
sketch14.MapMode = "FlatFace"
sketch14.AttachmentOffset = App.Placement(App.Vector(0, 0, -30.65), App.Rotation())
sketch14.addGeometry([
    Part.LineSegment(App.Vector(6.5, -1, 0), App.Vector(6.5, -1.5, 0)),
    Part.LineSegment(App.Vector(6.5, -1.5, 0), App.Vector(-5.8, -1.5, 0)),
    Part.LineSegment(App.Vector(-5.8, -1.5, 0), App.Vector(-5.8, -1, 0)),
    Part.LineSegment(App.Vector(-5.8, -1, 0), App.Vector(6.5, -1, 0)),
], False)
sketch14.addConstraint([
    Sketcher.Constraint("Coincident", 0, 2, 1, 1),
    Sketcher.Constraint("Coincident", 1, 2, 2, 1),
    Sketcher.Constraint("Coincident", 2, 2, 3, 1),
    Sketcher.Constraint("Coincident", 3, 2, 0, 1),
    Sketcher.Constraint("Vertical", 0),
    Sketcher.Constraint("Horizontal", 1),
    Sketcher.Constraint("Vertical", 2),
    Sketcher.Constraint("Horizontal", 3),
    Sketcher.Constraint("DistanceX", 1, 2, 1, 1, 12.4),
    Sketcher.Constraint("DistanceY", 0, 2, 0, 1, 0.5),
    Sketcher.Constraint("DistanceY", 2, 2, -1, 1, 1.0),
    Sketcher.Constraint("DistanceX", -1, 1, 0, 2, 6.55),
])
pad13 = doc.addObject("PartDesign::Pad", "Pad012")
body.addObject(pad13)
pad13.Profile = sketch14
pad13.Length = 4.5
pad13.Reversed = True

# Sketch on XY plane
sketch15 = doc.addObject("Sketcher::SketchObject", "Sketch014")
body.addObject(sketch15)
sketch15.AttachmentSupport = (doc.XY_Plane, [""])
sketch15.MapMode = "FlatFace"
sketch15.addGeometry([
    Part.LineSegment(App.Vector(-12.6, 5, 0), App.Vector(-13.8, 5, 0)),  # 0
    Part.LineSegment(App.Vector(-13.8, 5, 0), App.Vector(-13.8, 10, 0)),  # 1
    Part.LineSegment(App.Vector(-13.8, 10, 0), App.Vector(-6.3, 10, 0)),  # 2
    Part.LineSegment(App.Vector(-6.3, 10, 0), App.Vector(-6.3, 5, 0)),  # 3
    Part.LineSegment(App.Vector(-6.3, 5, 0), App.Vector(-7.6, 5, 0)),  # 4
    Part.LineSegment(App.Vector(-7.6, 5, 0), App.Vector(-7.6, 7, 0)),  # 5
    Part.LineSegment(App.Vector(-7.6, 7, 0), App.Vector(-12.6, 7, 0)),  # 6
    Part.LineSegment(App.Vector(-12.6, 7, 0), App.Vector(-12.6, 5, 0)),  # 7
], False)
sketch15.addConstraint([
    Sketcher.Constraint("Coincident", 0, 2, 1, 1),
    Sketcher.Constraint("Coincident", 1, 2, 2, 1),
    Sketcher.Constraint("Coincident", 2, 2, 3, 1),
    Sketcher.Constraint("Coincident", 3, 2, 4, 1),
    Sketcher.Constraint("Coincident", 4, 2, 5, 1),
    Sketcher.Constraint("Coincident", 5, 2, 6, 1),
    Sketcher.Constraint("Coincident", 6, 2, 7, 1),
    Sketcher.Constraint("Coincident", 7, 2, 0, 1),
    Sketcher.Constraint("Horizontal", 0),
    Sketcher.Constraint("Vertical", 1),
    Sketcher.Constraint("Horizontal", 2),
    Sketcher.Constraint("Vertical", 3),
    Sketcher.Constraint("Horizontal", 4),
    Sketcher.Constraint("Vertical", 5),
    Sketcher.Constraint("Horizontal", 6),
    Sketcher.Constraint("Vertical", 7),
    Sketcher.Constraint("Horizontal", 0, 2, 3, 2),
    Sketcher.Constraint("Equal", 0, 4),
    Sketcher.Constraint("Equal", 6, 1),
    Sketcher.Constraint("DistanceX", 6, 2, 6, 1, 5.0),
    Sketcher.Constraint("DistanceY", 5, 1, 5, 2, 2.0),
    Sketcher.Constraint("DistanceX", 2, 1, 2, 2, 7.5),
    Sketcher.Constraint("DistanceX", 4, 2, -1, 1, 7.6),
    Sketcher.Constraint("DistanceY", -1, 1, 0, 2, 4.975),
])
pad14 = doc.addObject("PartDesign::Pad", "Pad013")
body.addObject(pad14)
pad14.Profile = sketch15
pad14.Length = 3.5
pad14.Reversed = True

doc.recompute()
